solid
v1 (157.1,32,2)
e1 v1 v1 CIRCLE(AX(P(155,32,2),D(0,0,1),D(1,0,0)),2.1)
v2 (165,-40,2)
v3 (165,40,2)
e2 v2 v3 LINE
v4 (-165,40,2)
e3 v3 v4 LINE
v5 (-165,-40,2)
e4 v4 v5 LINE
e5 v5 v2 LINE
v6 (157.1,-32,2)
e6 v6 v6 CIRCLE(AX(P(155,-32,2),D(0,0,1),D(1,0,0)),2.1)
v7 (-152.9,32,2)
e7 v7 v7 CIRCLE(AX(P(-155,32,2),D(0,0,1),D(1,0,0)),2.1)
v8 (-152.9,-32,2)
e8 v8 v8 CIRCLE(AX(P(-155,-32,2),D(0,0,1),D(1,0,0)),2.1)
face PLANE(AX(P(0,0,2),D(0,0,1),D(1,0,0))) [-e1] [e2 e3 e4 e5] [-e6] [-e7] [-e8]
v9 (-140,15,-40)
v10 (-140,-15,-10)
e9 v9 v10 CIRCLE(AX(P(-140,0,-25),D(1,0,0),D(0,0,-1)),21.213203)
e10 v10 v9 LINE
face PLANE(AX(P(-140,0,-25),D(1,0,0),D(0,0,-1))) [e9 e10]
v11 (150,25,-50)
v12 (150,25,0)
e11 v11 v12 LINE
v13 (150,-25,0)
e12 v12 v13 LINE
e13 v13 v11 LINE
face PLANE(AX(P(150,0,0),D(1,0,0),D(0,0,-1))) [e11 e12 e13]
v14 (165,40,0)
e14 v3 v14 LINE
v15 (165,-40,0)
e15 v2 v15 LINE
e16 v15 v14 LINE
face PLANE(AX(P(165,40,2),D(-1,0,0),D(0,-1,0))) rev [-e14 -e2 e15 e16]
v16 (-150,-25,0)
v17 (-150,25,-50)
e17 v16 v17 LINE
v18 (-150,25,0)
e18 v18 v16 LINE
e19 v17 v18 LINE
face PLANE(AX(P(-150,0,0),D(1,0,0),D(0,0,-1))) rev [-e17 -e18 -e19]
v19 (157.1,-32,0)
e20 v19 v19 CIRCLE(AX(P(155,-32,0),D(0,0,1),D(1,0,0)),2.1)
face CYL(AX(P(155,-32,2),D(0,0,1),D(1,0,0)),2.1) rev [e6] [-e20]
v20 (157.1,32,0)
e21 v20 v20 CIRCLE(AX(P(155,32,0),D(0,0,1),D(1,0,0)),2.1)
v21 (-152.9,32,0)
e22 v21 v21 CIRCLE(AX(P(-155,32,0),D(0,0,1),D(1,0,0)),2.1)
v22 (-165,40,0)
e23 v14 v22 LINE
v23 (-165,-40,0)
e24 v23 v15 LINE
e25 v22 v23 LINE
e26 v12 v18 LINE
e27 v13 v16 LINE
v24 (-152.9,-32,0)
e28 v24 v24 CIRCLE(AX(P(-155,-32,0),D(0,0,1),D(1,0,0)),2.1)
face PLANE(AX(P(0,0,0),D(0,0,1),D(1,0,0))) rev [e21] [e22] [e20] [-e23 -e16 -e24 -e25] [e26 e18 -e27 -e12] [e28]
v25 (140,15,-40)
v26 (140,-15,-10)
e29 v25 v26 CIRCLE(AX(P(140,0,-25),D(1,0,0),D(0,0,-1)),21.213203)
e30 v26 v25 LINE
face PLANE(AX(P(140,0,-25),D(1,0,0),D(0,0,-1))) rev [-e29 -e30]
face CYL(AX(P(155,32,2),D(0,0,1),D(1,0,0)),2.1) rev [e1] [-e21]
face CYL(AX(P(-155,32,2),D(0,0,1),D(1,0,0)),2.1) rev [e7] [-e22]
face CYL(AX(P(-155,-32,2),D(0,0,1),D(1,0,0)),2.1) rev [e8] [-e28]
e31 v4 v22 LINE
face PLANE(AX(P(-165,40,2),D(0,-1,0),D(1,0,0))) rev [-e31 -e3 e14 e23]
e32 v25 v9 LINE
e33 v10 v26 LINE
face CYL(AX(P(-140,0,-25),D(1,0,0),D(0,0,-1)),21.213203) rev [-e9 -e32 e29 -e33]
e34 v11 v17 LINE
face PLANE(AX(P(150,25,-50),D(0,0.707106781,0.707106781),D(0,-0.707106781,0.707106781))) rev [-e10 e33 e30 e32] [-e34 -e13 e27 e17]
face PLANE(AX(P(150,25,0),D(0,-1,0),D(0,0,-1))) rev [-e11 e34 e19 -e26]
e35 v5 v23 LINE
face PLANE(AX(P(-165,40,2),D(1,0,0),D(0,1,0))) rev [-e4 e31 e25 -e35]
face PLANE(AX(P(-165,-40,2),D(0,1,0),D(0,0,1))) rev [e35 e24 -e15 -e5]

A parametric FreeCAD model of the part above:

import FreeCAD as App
import Part
import Sketcher


def add_polygon(sketch, points):
    """Adds a closed chain of lines whose ends are joined by coincident constraints."""
    first, n = sketch.GeometryCount, len(points)
    for a, b in zip(points, points[1:] + points[:1]):
        sketch.addGeometry(Part.LineSegment(App.Vector(*a, 0), App.Vector(*b, 0)), False)
    for i in range(n):
        sketch.addConstraint(Sketcher.Constraint("Coincident", first + i, 2, first + (i + 1) % n, 1))

doc = App.newDocument("Part")
params = doc.addObject("Spreadsheet::Sheet", "Params")
for row, (alias, value) in enumerate([
    ("sketch1_width", "330 mm"),
    ("sketch1_height", "80 mm"),
    ("pad1_length", "2 mm"),
    ("sketch2_diameter", "4.2 mm"),
    ("hole_diameter", "4.2 mm"),
    ("sketch3_width", "50 mm"),
    ("pad2_length", "300 mm"),
    ("pocket1_length", "280 mm"),
], start=1):
    params.set(f"A{row}", alias)
    params.set(f"B{row}", "=" + value)
    params.setAlias(f"B{row}", alias)

body = doc.addObject("PartDesign::Body", "Body")

sketch1 = doc.addObject("Sketcher::SketchObject", "Sketch")
body.addObject(sketch1)
sketch1.AttachmentSupport = (doc.XY_Plane, [""])
sketch1.MapMode = "FlatFace"
add_polygon(sketch1, [(-165, 40), (-165, -40), (165, -40), (165, 40)])
sketch1.addConstraint(Sketcher.Constraint("Vertical", 0))
sketch1.addConstraint(Sketcher.Constraint("Horizontal", 1))
sketch1.addConstraint(Sketcher.Constraint("Vertical", 2))
sketch1.addConstraint(Sketcher.Constraint("Horizontal", 3))
sketch1.addConstraint(Sketcher.Constraint("Symmetric", 0, 2, 2, 2, -1, 1))
sketch1.addConstraint(Sketcher.Constraint("DistanceX", 1, 1, 1, 2, 330.0))
sketch1.addConstraint(Sketcher.Constraint("DistanceY", 0, 2, 0, 1, 80.0))
sketch1.setExpression("Constraints[9]", "Params.sketch1_width")
sketch1.setExpression("Constraints[10]", "Params.sketch1_height")
pad1 = doc.addObject("PartDesign::Pad", "Pad")
body.addObject(pad1)
pad1.Profile = sketch1
pad1.setExpression("Length", "Params.pad1_length")

sketch2 = doc.addObject("Sketcher::SketchObject", "Sketch001")
body.addObject(sketch2)
sketch2.AttachmentSupport = (doc.XY_Plane, [""])
sketch2.MapMode = "FlatFace"
sketch2.AttachmentOffset = App.Placement(App.Vector(0, 0, 2), App.Rotation())
sketch2.addGeometry(Part.Circle(App.Vector(-155, 32, 0), App.Vector(0, 0, 1), 2.1), False)
sketch2.addGeometry(Part.Circle(App.Vector(-155, -32, 0), App.Vector(0, 0, 1), 2.1), False)
sketch2.addGeometry(Part.Circle(App.Vector(155, 32, 0), App.Vector(0, 0, 1), 2.1), False)
sketch2.addGeometry(Part.Circle(App.Vector(155, -32, 0), App.Vector(0, 0, 1), 2.1), False)
sketch2.addConstraint(Sketcher.Constraint("Equal", 0, 1))
sketch2.addConstraint(Sketcher.Constraint("Equal", 1, 2))
sketch2.addConstraint(Sketcher.Constraint("Equal", 2, 3))
sketch2.addConstraint(Sketcher.Constraint("Symmetric", 1, 3, 2, 3, -1, 1))
sketch2.addConstraint(Sketcher.Constraint("Symmetric", 0, 3, 3, 3, -1, 1))
sketch2.addConstraint(Sketcher.Constraint("Symmetric", 0, 3, 2, 3, -2))
sketch2.addConstraint(Sketcher.Constraint("Diameter", 0, 4.2))
sketch2.addConstraint(Sketcher.Constraint("DistanceX", 0, 3, -1, 1, 155.0))
sketch2.addConstraint(Sketcher.Constraint("DistanceY", -1, 1, 0, 3, 32.0))
sketch2.setExpression("Constraints[6]", "Params.sketch2_diameter")
doc.recompute()
hole = doc.addObject("PartDesign::Hole", "Hole")
body.addObject(hole)
hole.Profile = sketch2
hole.ThreadType = "None"
hole.setExpression("Diameter", "Params.hole_diameter")
hole.DepthType = "ThroughAll"

sketch3 = doc.addObject("Sketcher::SketchObject", "Sketch002")
body.addObject(sketch3)
sketch3.AttachmentSupport = (doc.YZ_Plane, [""])
sketch3.MapMode = "FlatFace"
add_polygon(sketch3, [(25, 0), (-25, 0), (25, -50)])
sketch3.addConstraint(Sketcher.Constraint("Horizontal", 0))
sketch3.addConstraint(Sketcher.Constraint("Vertical", 2))
sketch3.addConstraint(Sketcher.Constraint("Symmetric", 0, 2, 2, 2, -1, 1))
sketch3.addConstraint(Sketcher.Constraint("Equal", 0, 2))
sketch3.addConstraint(Sketcher.Constraint("DistanceX", 0, 2, 0, 1, 50.0))
sketch3.setExpression("Constraints[7]", "Params.sketch3_width")
pad2 = doc.addObject("PartDesign::Pad", "Pad001")
body.addObject(pad2)
pad2.Profile = sketch3
pad2.setExpression("Length", "Params.pad2_length")
pad2.Midplane = True

sketch4 = doc.addObject("Sketcher::SketchObject", "Sketch003")
body.addObject(sketch4)
sketch4.AttachmentSupport = (doc.YZ_Plane, [""])
sketch4.MapMode = "FlatFace"
sketch4.AttachmentOffset = App.Placement(App.Vector(0, 0, 140), App.Rotation())
sketch4.addGeometry(Part.Circle(App.Vector(0, -25, 0), App.Vector(0, 0, 1), 21), False)
sketch4.addConstraint(Sketcher.Constraint("PointOnObject", 0, 3, -2))
sketch4.addConstraint(Sketcher.Constraint("DistanceY", 0, 3, -1, 1, 25.0))
sketch4.addConstraint(Sketcher.Constraint("Diameter", 0, 42.426407))
pocket1 = doc.addObject("PartDesign::Pocket", "Pocket")
body.addObject(pocket1)
pocket1.Profile = sketch4
pocket1.setExpression("Length", "Params.pocket1_length")

doc.recompute()
